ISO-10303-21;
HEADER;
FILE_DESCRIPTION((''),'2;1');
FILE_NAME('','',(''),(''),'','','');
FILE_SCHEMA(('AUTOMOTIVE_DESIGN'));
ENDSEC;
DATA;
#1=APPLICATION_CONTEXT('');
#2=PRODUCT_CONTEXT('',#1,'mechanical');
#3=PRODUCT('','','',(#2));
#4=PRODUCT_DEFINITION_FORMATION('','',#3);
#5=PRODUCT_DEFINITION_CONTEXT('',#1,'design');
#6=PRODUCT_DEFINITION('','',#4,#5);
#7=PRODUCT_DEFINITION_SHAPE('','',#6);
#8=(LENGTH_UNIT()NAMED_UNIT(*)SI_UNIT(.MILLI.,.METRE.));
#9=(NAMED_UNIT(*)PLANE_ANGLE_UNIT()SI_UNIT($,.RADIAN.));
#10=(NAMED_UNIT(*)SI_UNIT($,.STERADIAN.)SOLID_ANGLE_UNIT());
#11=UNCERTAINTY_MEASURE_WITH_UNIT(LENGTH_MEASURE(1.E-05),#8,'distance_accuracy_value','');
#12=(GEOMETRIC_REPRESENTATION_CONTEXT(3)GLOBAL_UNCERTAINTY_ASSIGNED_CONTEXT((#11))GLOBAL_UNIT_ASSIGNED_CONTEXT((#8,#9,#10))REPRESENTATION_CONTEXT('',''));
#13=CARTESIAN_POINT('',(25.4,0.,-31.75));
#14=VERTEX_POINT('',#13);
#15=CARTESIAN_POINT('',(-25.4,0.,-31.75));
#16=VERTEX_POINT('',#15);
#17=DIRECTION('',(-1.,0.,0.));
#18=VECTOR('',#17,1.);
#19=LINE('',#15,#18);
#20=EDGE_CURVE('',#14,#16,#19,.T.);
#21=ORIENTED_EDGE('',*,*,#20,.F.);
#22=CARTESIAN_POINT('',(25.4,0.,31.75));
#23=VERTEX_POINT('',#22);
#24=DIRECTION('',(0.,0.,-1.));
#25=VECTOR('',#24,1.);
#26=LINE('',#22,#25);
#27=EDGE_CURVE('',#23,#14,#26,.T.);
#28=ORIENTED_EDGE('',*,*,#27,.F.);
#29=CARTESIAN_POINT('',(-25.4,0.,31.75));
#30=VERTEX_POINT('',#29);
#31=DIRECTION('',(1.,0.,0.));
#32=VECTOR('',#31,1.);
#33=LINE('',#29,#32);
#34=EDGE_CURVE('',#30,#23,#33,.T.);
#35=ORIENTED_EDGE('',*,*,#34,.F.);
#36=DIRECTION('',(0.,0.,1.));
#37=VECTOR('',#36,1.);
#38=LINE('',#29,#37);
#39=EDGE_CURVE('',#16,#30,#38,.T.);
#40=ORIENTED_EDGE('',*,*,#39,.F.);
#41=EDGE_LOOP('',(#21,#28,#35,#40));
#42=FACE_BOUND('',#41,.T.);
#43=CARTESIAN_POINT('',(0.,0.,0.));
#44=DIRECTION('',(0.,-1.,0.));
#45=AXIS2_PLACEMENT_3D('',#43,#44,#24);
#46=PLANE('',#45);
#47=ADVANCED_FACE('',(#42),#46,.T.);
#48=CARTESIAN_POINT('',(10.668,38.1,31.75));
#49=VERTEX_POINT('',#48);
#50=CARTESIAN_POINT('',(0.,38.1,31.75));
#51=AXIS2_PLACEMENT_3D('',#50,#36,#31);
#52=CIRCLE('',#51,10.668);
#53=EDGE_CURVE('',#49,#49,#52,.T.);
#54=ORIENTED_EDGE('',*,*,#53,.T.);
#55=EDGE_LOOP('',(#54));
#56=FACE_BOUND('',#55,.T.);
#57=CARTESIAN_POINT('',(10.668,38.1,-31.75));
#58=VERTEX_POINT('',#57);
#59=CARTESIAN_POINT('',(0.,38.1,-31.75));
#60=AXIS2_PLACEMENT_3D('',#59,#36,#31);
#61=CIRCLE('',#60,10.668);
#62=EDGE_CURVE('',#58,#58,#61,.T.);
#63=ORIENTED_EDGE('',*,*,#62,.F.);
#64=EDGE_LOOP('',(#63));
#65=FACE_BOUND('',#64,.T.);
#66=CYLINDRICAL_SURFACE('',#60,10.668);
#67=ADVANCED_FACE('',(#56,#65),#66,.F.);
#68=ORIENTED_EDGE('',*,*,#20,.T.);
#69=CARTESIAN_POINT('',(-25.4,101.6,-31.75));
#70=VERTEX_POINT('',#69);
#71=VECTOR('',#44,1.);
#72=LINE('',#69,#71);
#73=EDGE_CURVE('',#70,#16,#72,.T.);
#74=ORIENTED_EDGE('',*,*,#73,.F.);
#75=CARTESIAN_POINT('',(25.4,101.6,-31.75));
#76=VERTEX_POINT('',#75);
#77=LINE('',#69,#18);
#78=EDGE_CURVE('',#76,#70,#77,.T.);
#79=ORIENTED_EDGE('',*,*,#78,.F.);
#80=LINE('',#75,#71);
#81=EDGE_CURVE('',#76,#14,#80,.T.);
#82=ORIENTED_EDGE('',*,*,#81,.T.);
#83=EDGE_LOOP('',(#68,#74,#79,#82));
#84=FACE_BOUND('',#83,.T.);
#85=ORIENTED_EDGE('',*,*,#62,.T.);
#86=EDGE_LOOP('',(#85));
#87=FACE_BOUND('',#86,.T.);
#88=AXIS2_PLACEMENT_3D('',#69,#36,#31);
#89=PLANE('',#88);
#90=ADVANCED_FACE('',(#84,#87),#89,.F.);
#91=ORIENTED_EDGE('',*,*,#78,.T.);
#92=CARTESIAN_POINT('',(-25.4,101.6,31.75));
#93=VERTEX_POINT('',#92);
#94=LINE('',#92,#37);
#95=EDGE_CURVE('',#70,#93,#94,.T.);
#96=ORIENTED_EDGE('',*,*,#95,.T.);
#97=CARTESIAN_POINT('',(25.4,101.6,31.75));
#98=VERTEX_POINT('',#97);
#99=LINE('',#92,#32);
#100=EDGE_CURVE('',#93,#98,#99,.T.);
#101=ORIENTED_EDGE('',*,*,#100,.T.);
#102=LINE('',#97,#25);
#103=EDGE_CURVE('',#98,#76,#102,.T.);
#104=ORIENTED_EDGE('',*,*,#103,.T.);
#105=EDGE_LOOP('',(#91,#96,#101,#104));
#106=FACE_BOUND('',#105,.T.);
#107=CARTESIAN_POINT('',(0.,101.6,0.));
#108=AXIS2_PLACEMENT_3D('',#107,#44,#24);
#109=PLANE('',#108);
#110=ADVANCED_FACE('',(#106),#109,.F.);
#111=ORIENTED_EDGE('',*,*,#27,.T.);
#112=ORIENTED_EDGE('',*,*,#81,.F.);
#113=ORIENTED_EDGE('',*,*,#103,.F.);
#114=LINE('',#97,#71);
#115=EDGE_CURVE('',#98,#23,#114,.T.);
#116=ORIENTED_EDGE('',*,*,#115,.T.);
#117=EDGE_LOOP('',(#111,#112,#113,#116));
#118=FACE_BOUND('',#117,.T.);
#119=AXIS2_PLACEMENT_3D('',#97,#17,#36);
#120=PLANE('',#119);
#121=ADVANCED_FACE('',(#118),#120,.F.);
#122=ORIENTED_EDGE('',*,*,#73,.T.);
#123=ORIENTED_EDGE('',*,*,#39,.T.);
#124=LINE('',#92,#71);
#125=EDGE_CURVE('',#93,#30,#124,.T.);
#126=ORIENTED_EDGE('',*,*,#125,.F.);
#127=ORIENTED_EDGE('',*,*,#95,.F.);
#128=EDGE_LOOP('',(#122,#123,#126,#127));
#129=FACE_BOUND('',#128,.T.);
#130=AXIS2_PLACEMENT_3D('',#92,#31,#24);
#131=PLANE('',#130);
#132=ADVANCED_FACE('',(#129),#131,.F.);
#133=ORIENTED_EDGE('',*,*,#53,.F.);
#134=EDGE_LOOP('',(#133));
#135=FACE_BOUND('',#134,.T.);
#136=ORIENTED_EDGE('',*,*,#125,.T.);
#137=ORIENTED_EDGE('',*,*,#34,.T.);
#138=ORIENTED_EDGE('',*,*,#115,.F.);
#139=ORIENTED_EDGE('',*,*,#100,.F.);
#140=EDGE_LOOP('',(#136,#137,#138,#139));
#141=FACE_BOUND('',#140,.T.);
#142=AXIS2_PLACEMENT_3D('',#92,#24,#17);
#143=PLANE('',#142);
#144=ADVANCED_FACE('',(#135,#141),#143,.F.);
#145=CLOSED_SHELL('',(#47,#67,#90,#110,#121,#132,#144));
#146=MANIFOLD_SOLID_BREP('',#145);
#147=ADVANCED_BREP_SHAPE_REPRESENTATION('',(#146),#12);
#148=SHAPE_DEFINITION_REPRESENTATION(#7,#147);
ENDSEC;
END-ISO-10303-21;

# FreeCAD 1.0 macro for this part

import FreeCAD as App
import Part
import Sketcher
Q = App.Units.Quantity


def add_polygon(sketch, points):
    """Adds a closed chain of lines whose ends are joined by coincident constraints."""
    first, n = sketch.GeometryCount, len(points)
    for a, b in zip(points, points[1:] + points[:1]):
        sketch.addGeometry(Part.LineSegment(App.Vector(*a, 0), App.Vector(*b, 0)), False)
    for i in range(n):
        sketch.addConstraint(Sketcher.Constraint("Coincident", first + i, 2, first + (i + 1) % n, 1))

doc = App.newDocument("Part")
body = doc.addObject("PartDesign::Body", "Body")

sketch1 = doc.addObject("Sketcher::SketchObject", "Sketch")
body.addObject(sketch1)
sketch1.AttachmentSupport = (doc.XZ_Plane, [""])
sketch1.MapMode = "FlatFace"
add_polygon(sketch1, [(-25, -32), (-25, 32), (25, 32), (25, -32)])
sketch1.addConstraint(Sketcher.Constraint("Vertical", 0))
sketch1.addConstraint(Sketcher.Constraint("Horizontal", 1))
sketch1.addConstraint(Sketcher.Constraint("Vertical", 2))
sketch1.addConstraint(Sketcher.Constraint("Horizontal", 3))
sketch1.addConstraint(Sketcher.Constraint("Symmetric", 0, 2, 2, 2, -1, 1))
sketch1.addConstraint(Sketcher.Constraint("DistanceX", 1, 1, 1, 2, Q("2 in")))
sketch1.addConstraint(Sketcher.Constraint("DistanceY", 0, 1, 0, 2, Q("2.5 in")))
pad1 = doc.addObject("PartDesign::Pad", "Pad")
body.addObject(pad1)
pad1.Profile = sketch1
pad1.Length = Q("4 in")
pad1.Reversed = True

sketch2 = doc.addObject("Sketcher::SketchObject", "Sketch001")
body.addObject(sketch2)
sketch2.AttachmentSupport = (doc.XY_Plane, [""])
sketch2.MapMode = "FlatFace"
sketch2.addGeometry(Part.Circle(App.Vector(0, 38, 0), App.Vector(0, 0, 1), 11), False)
sketch2.addConstraint(Sketcher.Constraint("PointOnObject", 0, 3, -2))
sketch2.addConstraint(Sketcher.Constraint("Diameter", 0, Q("0.84 in")))
sketch2.addConstraint(Sketcher.Constraint("DistanceY", -1, 1, 0, 3, Q("1.5 in")))
pocket1 = doc.addObject("PartDesign::Pocket", "Pocket")
body.addObject(pocket1)
pocket1.Profile = sketch2
pocket1.Type = "ThroughAll"
pocket1.Midplane = True

doc.recompute()
